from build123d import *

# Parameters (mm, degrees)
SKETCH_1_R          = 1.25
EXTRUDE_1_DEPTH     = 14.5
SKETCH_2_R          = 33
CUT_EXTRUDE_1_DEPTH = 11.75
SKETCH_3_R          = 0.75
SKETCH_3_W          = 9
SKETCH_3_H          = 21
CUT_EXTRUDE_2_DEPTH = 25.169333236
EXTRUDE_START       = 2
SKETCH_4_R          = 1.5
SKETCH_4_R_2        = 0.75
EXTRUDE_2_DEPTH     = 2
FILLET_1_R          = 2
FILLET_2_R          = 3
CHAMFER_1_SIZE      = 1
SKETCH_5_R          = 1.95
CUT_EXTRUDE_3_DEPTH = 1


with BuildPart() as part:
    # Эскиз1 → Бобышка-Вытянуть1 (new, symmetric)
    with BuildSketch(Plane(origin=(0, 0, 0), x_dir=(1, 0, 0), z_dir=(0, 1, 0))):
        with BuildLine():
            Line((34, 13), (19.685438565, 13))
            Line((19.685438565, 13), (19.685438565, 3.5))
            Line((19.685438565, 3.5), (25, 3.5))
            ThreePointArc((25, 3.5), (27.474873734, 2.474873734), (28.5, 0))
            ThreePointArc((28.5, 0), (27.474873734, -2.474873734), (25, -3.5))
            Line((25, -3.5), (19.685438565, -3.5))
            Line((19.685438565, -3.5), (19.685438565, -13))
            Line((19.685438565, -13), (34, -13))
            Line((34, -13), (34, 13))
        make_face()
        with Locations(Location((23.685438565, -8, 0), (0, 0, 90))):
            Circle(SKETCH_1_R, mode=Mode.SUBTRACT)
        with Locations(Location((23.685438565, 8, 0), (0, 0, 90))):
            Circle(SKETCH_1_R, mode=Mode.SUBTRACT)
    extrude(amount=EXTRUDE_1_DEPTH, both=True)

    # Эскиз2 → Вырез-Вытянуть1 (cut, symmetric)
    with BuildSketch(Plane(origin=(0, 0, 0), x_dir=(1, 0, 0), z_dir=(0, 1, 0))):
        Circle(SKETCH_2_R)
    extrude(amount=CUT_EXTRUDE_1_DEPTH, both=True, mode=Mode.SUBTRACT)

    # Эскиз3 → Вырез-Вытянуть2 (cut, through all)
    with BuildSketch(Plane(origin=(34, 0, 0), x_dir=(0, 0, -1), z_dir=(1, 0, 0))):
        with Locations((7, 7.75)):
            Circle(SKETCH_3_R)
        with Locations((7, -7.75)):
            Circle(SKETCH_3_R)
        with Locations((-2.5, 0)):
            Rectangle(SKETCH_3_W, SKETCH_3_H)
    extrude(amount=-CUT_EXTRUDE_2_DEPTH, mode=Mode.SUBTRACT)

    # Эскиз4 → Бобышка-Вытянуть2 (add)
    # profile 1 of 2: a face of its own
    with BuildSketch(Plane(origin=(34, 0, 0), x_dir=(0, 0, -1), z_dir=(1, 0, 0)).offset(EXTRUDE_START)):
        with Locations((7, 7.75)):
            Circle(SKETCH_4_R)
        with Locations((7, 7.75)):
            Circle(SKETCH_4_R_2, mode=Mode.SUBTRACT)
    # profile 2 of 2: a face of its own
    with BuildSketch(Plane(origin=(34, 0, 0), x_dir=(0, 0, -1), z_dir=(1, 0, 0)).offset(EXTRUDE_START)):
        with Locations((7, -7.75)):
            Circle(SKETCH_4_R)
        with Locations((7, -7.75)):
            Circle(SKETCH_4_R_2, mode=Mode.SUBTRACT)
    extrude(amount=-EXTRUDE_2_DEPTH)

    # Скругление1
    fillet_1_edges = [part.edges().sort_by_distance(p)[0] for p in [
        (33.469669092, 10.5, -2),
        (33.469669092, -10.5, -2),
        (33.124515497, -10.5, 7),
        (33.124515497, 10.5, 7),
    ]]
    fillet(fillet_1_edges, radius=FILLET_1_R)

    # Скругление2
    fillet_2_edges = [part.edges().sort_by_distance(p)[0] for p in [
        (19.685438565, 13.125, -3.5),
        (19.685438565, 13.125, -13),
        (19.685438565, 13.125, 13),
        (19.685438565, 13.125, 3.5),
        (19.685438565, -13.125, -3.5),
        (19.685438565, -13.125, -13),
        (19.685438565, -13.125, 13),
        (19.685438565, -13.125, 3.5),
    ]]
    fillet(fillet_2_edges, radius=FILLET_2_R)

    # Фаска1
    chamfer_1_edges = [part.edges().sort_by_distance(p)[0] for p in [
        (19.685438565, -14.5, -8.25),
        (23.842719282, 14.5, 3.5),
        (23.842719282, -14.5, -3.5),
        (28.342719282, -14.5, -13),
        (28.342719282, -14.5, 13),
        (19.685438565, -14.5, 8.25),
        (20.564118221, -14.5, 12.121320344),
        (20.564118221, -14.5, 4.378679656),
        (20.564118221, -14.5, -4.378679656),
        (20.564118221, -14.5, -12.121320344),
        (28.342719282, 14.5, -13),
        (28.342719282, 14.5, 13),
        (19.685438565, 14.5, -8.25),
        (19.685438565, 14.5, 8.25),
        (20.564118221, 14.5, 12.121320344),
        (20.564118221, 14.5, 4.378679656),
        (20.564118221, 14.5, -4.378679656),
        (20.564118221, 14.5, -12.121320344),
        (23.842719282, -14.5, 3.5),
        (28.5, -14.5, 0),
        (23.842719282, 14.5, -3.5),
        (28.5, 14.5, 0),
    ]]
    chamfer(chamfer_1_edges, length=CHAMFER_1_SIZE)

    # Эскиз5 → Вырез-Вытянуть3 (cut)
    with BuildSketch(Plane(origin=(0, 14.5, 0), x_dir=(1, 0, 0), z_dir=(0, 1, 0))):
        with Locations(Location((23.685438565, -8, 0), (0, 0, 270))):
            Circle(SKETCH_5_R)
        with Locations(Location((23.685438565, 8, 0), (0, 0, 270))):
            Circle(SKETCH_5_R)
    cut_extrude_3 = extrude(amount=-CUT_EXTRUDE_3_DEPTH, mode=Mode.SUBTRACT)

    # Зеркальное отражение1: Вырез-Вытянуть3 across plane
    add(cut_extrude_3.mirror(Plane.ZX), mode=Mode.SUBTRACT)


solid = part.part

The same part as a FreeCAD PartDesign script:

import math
import FreeCAD as App
import Part
import Sketcher

V = App.Vector


def edges_at(feature, points):
    """Names of the edges that pass closest to the given points."""
    edges = feature.Shape.Edges
    near = lambda p: min(range(len(edges)), key=lambda i: edges[i].distToShape(Part.Vertex(*p))[0])
    return sorted({f"Edge{near(p) + 1}" for p in points})

doc = App.newDocument("Part")
body = doc.addObject("PartDesign::Body", "Body")

sketch1 = body.newObject("Sketcher::SketchObject", "Sketch")
sketch1.AttachmentSupport = (doc.getObject("XZ_Plane"), [""])
sketch1.MapMode = "FlatFace"
sketch1.addGeometry(Part.LineSegment(V(34, -13, 0), V(19.7, -13, 0)), False)
sketch1.addGeometry(Part.LineSegment(V(19.7, -13, 0), V(19.7, -3.5, 0)), False)
sketch1.addGeometry(Part.LineSegment(V(19.7, -3.5, 0), V(25, -3.5, 0)), False)
sketch1.addGeometry(Part.ArcOfCircle(Part.Circle(V(25, 0, 0), V(0, 0, 1), 3.5), math.radians(-90), math.radians(0)), False)
sketch1.addGeometry(Part.ArcOfCircle(Part.Circle(V(25, 0, 0), V(0, 0, 1), 3.5), math.radians(0), math.radians(90)), False)
sketch1.addGeometry(Part.LineSegment(V(25, 3.5, 0), V(19.7, 3.5, 0)), False)
sketch1.addGeometry(Part.LineSegment(V(19.7, 3.5, 0), V(19.7, 13, 0)), False)
sketch1.addGeometry(Part.LineSegment(V(19.7, 13, 0), V(34, 13, 0)), False)
sketch1.addGeometry(Part.LineSegment(V(34, 13, 0), V(34, -13, 0)), False)
sketch1.addGeometry(Part.Circle(V(23.7, 8, 0), V(0, 0, 1), 1.2), False)
sketch1.addGeometry(Part.Circle(V(23.7, -8, 0), V(0, 0, 1), 1.2), False)
sketch1.addConstraint(Sketcher.Constraint("Coincident", 0, 2, 1, 1))
sketch1.addConstraint(Sketcher.Constraint("Coincident", 1, 2, 2, 1))
sketch1.addConstraint(Sketcher.Constraint("Tangent", 2, 2, 3, 1))
sketch1.addConstraint(Sketcher.Constraint("Tangent", 3, 2, 4, 1))
sketch1.addConstraint(Sketcher.Constraint("Tangent", 4, 2, 5, 1))
sketch1.addConstraint(Sketcher.Constraint("Coincident", 5, 2, 6, 1))
sketch1.addConstraint(Sketcher.Constraint("Coincident", 6, 2, 7, 1))
sketch1.addConstraint(Sketcher.Constraint("Coincident", 7, 2, 8, 1))
sketch1.addConstraint(Sketcher.Constraint("Coincident", 8, 2, 0, 1))
sketch1.addConstraint(Sketcher.Constraint("Horizontal", 0))
sketch1.addConstraint(Sketcher.Constraint("Vertical", 1))
sketch1.addConstraint(Sketcher.Constraint("Horizontal", 2))
sketch1.addConstraint(Sketcher.Constraint("Horizontal", 5))
sketch1.addConstraint(Sketcher.Constraint("Vertical", 6))
sketch1.addConstraint(Sketcher.Constraint("Horizontal", 7))
sketch1.addConstraint(Sketcher.Constraint("Vertical", 8))
sketch1.addConstraint(Sketcher.Constraint("Equal", 3, 4))
sketch1.addConstraint(Sketcher.Constraint("Equal", 9, 10))
sketch1.addConstraint(Sketcher.Constraint("Symmetric", 9, 3, 10, 3, -1))
sketch1.addConstraint(Sketcher.Constraint("Symmetric", 1, 2, 5, 2, -1))
sketch1.addConstraint(Sketcher.Constraint("PointOnObject", 3, 2, -1))
sketch1.addConstraint(Sketcher.Constraint("Equal", 1, 6))
sketch1.addConstraint(Sketcher.Constraint("Diameter", 9, 2.5))
sketch1.addConstraint(Sketcher.Constraint("Radius", 3, 3.5))
sketch1.addConstraint(Sketcher.Constraint("DistanceY", 8, 2, 8, 1, 26.0))
sketch1.addConstraint(Sketcher.Constraint("DistanceX", -1, 1, 3, 3, 25.0))
sketch1.addConstraint(Sketcher.Constraint("DistanceY", -1, 1, 9, 3, 8.0))
sketch1.addConstraint(Sketcher.Constraint("DistanceX", -1, 1, 7, 2, 34.0))
sketch1.addConstraint(Sketcher.Constraint("DistanceX", 0, 2, 10, 3, 4.0))
sketch1.addConstraint(Sketcher.Constraint("DistanceX", 0, 2, 0, 1, 14.314561))
pad1 = body.newObject("PartDesign::Pad", "Pad")
pad1.Profile = sketch1
pad1.Length = 29
pad1.Midplane = True

sketch2 = body.newObject("Sketcher::SketchObject", "Sketch001")
sketch2.AttachmentSupport = (doc.getObject("XZ_Plane"), [""])
sketch2.MapMode = "FlatFace"
sketch2.addGeometry(Part.Circle(V(0, 0, 0), V(0, 0, 1), 33), False)
sketch2.addConstraint(Sketcher.Constraint("Coincident", 0, 3, -1, 1))
sketch2.addConstraint(Sketcher.Constraint("Diameter", 0, 66.0))
pocket1 = body.newObject("PartDesign::Pocket", "Pocket")
pocket1.Profile = sketch2
pocket1.Length = 23.5
pocket1.Midplane = True

sketch3 = body.newObject("Sketcher::SketchObject", "Sketch002")
sketch3.AttachmentSupport = (doc.getObject("YZ_Plane"), [""])
sketch3.MapMode = "FlatFace"
sketch3.AttachmentOffset = App.Placement(V(0, 0, 34), App.Rotation())
sketch3.addGeometry(Part.Circle(V(7.8, -7, 0), V(0, 0, 1), 0.8), False)
sketch3.addGeometry(Part.Circle(V(-7.8, -7, 0), V(0, 0, 1), 0.8), False)
sketch3.addGeometry(Part.LineSegment(V(10.5, 7, 0), V(-10.5, 7, 0)), False)
sketch3.addGeometry(Part.LineSegment(V(-10.5, 7, 0), V(-10.5, -2, 0)), False)
sketch3.addGeometry(Part.LineSegment(V(-10.5, -2, 0), V(10.5, -2, 0)), False)
sketch3.addGeometry(Part.LineSegment(V(10.5, -2, 0), V(10.5, 7, 0)), False)
sketch3.addConstraint(Sketcher.Constraint("Coincident", 2, 2, 3, 1))
sketch3.addConstraint(Sketcher.Constraint("Coincident", 3, 2, 4, 1))
sketch3.addConstraint(Sketcher.Constraint("Coincident", 4, 2, 5, 1))
sketch3.addConstraint(Sketcher.Constraint("Coincident", 5, 2, 2, 1))
sketch3.addConstraint(Sketcher.Constraint("Horizontal", 2))
sketch3.addConstraint(Sketcher.Constraint("Vertical", 3))
sketch3.addConstraint(Sketcher.Constraint("Horizontal", 4))
sketch3.addConstraint(Sketcher.Constraint("Vertical", 5))
sketch3.addConstraint(Sketcher.Constraint("Equal", 0, 1))
sketch3.addConstraint(Sketcher.Constraint("Symmetric", 0, 3, 1, 3, -2))
sketch3.addConstraint(Sketcher.Constraint("Diameter", 0, 1.5))
sketch3.addConstraint(Sketcher.Constraint("DistanceX", 2, 2, 2, 1, 21.0))
sketch3.addConstraint(Sketcher.Constraint("DistanceY", 3, 2, 3, 1, 9.0))
sketch3.addConstraint(Sketcher.Constraint("DistanceY", 0, 3, -1, 1, 7.0))
sketch3.addConstraint(Sketcher.Constraint("DistanceY", -1, 1, 2, 2, 7.0))
sketch3.addConstraint(Sketcher.Constraint("DistanceX", 2, 2, -1, 1, 10.5))
sketch3.addConstraint(Sketcher.Constraint("DistanceX", 1, 3, 0, 3, 15.5))
pocket2 = body.newObject("PartDesign::Pocket", "Pocket001")
pocket2.Profile = sketch3
pocket2.Type = "ThroughAll"

sketch4 = body.newObject("Sketcher::SketchObject", "Sketch003")
sketch4.AttachmentSupport = (doc.getObject("YZ_Plane"), [""])
sketch4.MapMode = "FlatFace"
sketch4.AttachmentOffset = App.Placement(V(0, 0, 36), App.Rotation())
sketch4.addGeometry(Part.Circle(V(7.8, -7, 0), V(0, 0, 1), 1.5), False)
sketch4.addGeometry(Part.Circle(V(7.8, -7, 0), V(0, 0, 1), 0.8), False)
sketch4.addGeometry(Part.Circle(V(-7.8, -7, 0), V(0, 0, 1), 1.5), False)
sketch4.addGeometry(Part.Circle(V(-7.8, -7, 0), V(0, 0, 1), 0.8), False)
sketch4.addConstraint(Sketcher.Constraint("Coincident", 1, 3, 0, 3))
sketch4.addConstraint(Sketcher.Constraint("Coincident", 3, 3, 2, 3))
sketch4.addConstraint(Sketcher.Constraint("Equal", 0, 2))
sketch4.addConstraint(Sketcher.Constraint("Equal", 1, 3))
sketch4.addConstraint(Sketcher.Constraint("Symmetric", 0, 3, 2, 3, -2))
sketch4.addConstraint(Sketcher.Constraint("Diameter", 0, 3.0))
sketch4.addConstraint(Sketcher.Constraint("Diameter", 1, 1.5))
sketch4.addConstraint(Sketcher.Constraint("DistanceY", 0, 3, -1, 1, 7.0))
sketch4.addConstraint(Sketcher.Constraint("DistanceX", 2, 3, 0, 3, 15.5))
pad2 = body.newObject("PartDesign::Pad", "Pad001")
pad2.Profile = sketch4
pad2.Length = 2
pad2.Reversed = True
doc.recompute()

fillet = body.newObject("PartDesign::Fillet", "Fillet")
fillet.Base = (pad2, edges_at(pad2, [
    (33.47, 10.5, -2),
    (33.47, -10.5, -2),
    (33.125, -10.5, 7),
    (33.125, 10.5, 7),
]))
fillet.Radius = 2
doc.recompute()

fillet2 = body.newObject("PartDesign::Fillet", "Fillet001")
fillet2.Base = (fillet, edges_at(fillet, [
    (19.685, 13.125, -3.5),
    (19.685, 13.125, -13),
    (19.685, 13.125, 13),
    (19.685, 13.125, 3.5),
    (19.685, -13.125, -3.5),
    (19.685, -13.125, -13),
    (19.685, -13.125, 13),
    (19.685, -13.125, 3.5),
]))
fillet2.Radius = 3
doc.recompute()

chamfer = body.newObject("PartDesign::Chamfer", "Chamfer")
chamfer.Base = (fillet2, edges_at(fillet2, [
    (19.685, -14.5, -8.25),
    (23.843, 14.5, 3.5),
    (23.843, -14.5, -3.5),
    (28.343, -14.5, -13),
    (28.343, -14.5, 13),
    (19.685, -14.5, 8.25),
    (20.564, -14.5, 12.121),
    (20.564, -14.5, 4.379),
    (20.564, -14.5, -4.379),
    (20.564, -14.5, -12.121),
    (28.343, 14.5, -13),
    (28.343, 14.5, 13),
    (19.685, 14.5, -8.25),
    (19.685, 14.5, 8.25),
    (20.564, 14.5, 12.121),
    (20.564, 14.5, 4.379),
    (20.564, 14.5, -4.379),
    (20.564, 14.5, -12.121),
    (23.843, -14.5, 3.5),
    (27.475, -14.5, -2.475),
    (23.843, 14.5, -3.5),
    (27.475, 14.5, -2.475),
]))
chamfer.Size = 1

sketch5 = body.newObject("Sketcher::SketchObject", "Sketch004")
sketch5.AttachmentSupport = (doc.getObject("XZ_Plane"), [""])
sketch5.MapMode = "FlatFace"
sketch5.AttachmentOffset = App.Placement(V(0, 0, -14.5), App.Rotation())
sketch5.addGeometry(Part.Circle(V(23.7, 8, 0), V(0, 0, 1), 1.9), False)
sketch5.addGeometry(Part.Circle(V(23.7, -8, 0), V(0, 0, 1), 1.9), False)
sketch5.addConstraint(Sketcher.Constraint("Equal", 0, 1))
sketch5.addConstraint(Sketcher.Constraint("Symmetric", 0, 3, 1, 3, -1))
sketch5.addConstraint(Sketcher.Constraint("Diameter", 0, 3.9))
sketch5.addConstraint(Sketcher.Constraint("DistanceY", -1, 1, 0, 3, 8.0))
sketch5.addConstraint(Sketcher.Constraint("DistanceX", -1, 1, 0, 3, 23.685439))
pocket3 = body.newObject("PartDesign::Pocket", "Pocket002")
pocket3.Profile = sketch5
pocket3.Length = 1
pocket3.Reversed = True
doc.recompute()

mirrored = body.newObject("PartDesign::Mirrored", "Mirrored")
mirrored.Originals = [pocket3]
mirrored.MirrorPlane = (doc.getObject("XZ_Plane"), [""])
body.Tip = mirrored

doc.recompute()
